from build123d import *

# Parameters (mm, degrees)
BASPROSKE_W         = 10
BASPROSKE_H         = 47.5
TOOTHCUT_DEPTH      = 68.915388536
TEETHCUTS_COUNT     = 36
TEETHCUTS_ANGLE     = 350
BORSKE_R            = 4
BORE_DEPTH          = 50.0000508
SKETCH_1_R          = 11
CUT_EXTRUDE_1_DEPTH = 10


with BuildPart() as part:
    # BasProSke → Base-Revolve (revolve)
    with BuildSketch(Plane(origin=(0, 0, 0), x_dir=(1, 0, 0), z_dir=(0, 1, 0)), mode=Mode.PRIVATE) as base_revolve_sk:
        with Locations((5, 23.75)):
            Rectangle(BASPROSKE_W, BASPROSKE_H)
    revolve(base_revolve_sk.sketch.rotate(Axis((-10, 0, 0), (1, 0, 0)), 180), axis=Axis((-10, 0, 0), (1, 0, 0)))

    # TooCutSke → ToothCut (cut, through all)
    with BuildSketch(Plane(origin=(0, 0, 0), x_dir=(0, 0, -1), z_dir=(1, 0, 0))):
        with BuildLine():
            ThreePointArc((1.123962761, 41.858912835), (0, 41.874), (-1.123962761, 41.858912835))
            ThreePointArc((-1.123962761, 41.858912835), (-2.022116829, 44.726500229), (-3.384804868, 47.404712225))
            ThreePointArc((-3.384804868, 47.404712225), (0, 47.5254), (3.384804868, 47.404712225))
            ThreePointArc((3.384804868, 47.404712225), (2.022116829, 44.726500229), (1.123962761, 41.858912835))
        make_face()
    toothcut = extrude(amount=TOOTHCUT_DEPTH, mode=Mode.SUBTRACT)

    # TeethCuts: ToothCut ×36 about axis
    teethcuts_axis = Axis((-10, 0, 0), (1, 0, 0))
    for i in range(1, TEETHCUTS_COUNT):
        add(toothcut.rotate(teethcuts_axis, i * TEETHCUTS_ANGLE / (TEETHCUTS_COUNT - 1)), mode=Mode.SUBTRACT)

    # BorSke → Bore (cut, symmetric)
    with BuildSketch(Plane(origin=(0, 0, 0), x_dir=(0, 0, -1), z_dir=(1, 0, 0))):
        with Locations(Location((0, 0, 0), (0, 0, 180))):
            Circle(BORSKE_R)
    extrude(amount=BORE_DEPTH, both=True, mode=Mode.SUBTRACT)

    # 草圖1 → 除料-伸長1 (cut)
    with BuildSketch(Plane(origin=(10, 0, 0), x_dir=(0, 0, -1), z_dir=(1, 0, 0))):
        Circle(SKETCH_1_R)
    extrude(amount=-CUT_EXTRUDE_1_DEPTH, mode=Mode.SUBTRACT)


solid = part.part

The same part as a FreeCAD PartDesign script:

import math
import FreeCAD as App
import Part
import Sketcher


def add_polygon(sketch, points):
    """Adds a closed chain of lines whose ends are joined by coincident constraints."""
    first, n = sketch.GeometryCount, len(points)
    for a, b in zip(points, points[1:] + points[:1]):
        sketch.addGeometry(Part.LineSegment(App.Vector(*a, 0), App.Vector(*b, 0)), False)
    for i in range(n):
        sketch.addConstraint(Sketcher.Constraint("Coincident", first + i, 2, first + (i + 1) % n, 1))

doc = App.newDocument("Part")
body = doc.addObject("PartDesign::Body", "Body")

# Sketch on XZ plane
sketch1 = body.newObject("Sketcher::SketchObject", "Sketch")
sketch1.AttachmentSupport = (doc.getObject("XZ_Plane"), [""])
sketch1.MapMode = "FlatFace"
add_polygon(sketch1, [(0, -47.5), (0, 0), (10, 0), (10, -47.5)])  # lines 0-3
sketch1.addConstraint(Sketcher.Constraint("Vertical", 0))
sketch1.addConstraint(Sketcher.Constraint("Horizontal", 1))
sketch1.addConstraint(Sketcher.Constraint("Vertical", 2))
sketch1.addConstraint(Sketcher.Constraint("Horizontal", 3))
sketch1.addConstraint(Sketcher.Constraint("Coincident", 0, 2, -1, 1))
sketch1.addConstraint(Sketcher.Constraint("DistanceX", 1, 1, 1, 2, 10.0))
sketch1.addConstraint(Sketcher.Constraint("DistanceY", 0, 1, 0, 2, 47.5))
revolution = body.newObject("PartDesign::Revolution", "Revolution")
revolution.Profile = sketch1
revolution.ReferenceAxis = (sketch1, ["H_Axis"])
revolution.Angle = 360

# Sketch on YZ plane
sketch2 = body.newObject("Sketcher::SketchObject", "Sketch001")
sketch2.AttachmentSupport = (doc.getObject("YZ_Plane"), [""])
sketch2.MapMode = "FlatFace"
sketch2.addGeometry(Part.ArcOfCircle(Part.Circle(App.Vector(-0.000001, 0, 0), App.Vector(0, 0, 1), 41.874001), math.radians(-1.538092), math.radians(1.538092)), False)
sketch2.addGeometry(Part.ArcOfCircle(Part.Circle(App.Vector(37.931438, -18.690264, 0), App.Vector(0, 0, 1), 18), math.radians(58.244673), math.radians(77.397077)), False)
sketch2.addGeometry(Part.ArcOfCircle(Part.Circle(App.Vector(0, 0, 0), App.Vector(0, 0, 1), 47.5254), math.radians(-4.084118), math.radians(4.084118)), False)
sketch2.addGeometry(Part.ArcOfCircle(Part.Circle(App.Vector(37.931438, 18.690264, 0), App.Vector(0, 0, 1), 18), math.radians(-77.397077), math.radians(-58.244673)), False)
sketch2.addConstraint(Sketcher.Constraint("Coincident", 0, 1, 1, 2))
sketch2.addConstraint(Sketcher.Constraint("Coincident", 1, 1, 2, 1))
sketch2.addConstraint(Sketcher.Constraint("Coincident", 2, 2, 3, 2))
sketch2.addConstraint(Sketcher.Constraint("Coincident", 3, 1, 0, 2))
sketch2.addConstraint(Sketcher.Constraint("Coincident", 0, 3, -1, 1))
sketch2.addConstraint(Sketcher.Constraint("Coincident", 2, 3, -1, 1))
sketch2.addConstraint(Sketcher.Constraint("Equal", 1, 3))
sketch2.addConstraint(Sketcher.Constraint("Symmetric", 1, 3, 3, 3, -1))
sketch2.addConstraint(Sketcher.Constraint("Radius", 1, 18.0))
sketch2.addConstraint(Sketcher.Constraint("Radius", 0, 41.874001))
sketch2.addConstraint(Sketcher.Constraint("Radius", 2, 47.5254))
sketch2.addConstraint(Sketcher.Constraint("DistanceY", 1, 3, 0, 1, 17.566301))
sketch2.addConstraint(Sketcher.Constraint("DistanceX", 0, 1, 2, 2, 5.545799))
pocket1 = body.newObject("PartDesign::Pocket", "Pocket")
pocket1.Profile = sketch2
pocket1.Type = "ThroughAll"
pocket1.Reversed = True
doc.recompute()

polarpattern = body.newObject("PartDesign::PolarPattern", "PolarPattern")
polarpattern.Originals = [pocket1]
polarpattern.Axis = (doc.getObject("X_Axis"), [""])
polarpattern.Angle = 360
polarpattern.Occurrences = 36
body.Tip = polarpattern

# Sketch on YZ plane
sketch3 = body.newObject("Sketcher::SketchObject", "Sketch002")
sketch3.AttachmentSupport = (doc.getObject("YZ_Plane"), [""])
sketch3.MapMode = "FlatFace"
sketch3.addGeometry(Part.Circle(App.Vector(0, 0, 0), App.Vector(0, 0, 1), 4), False)
sketch3.addConstraint(Sketcher.Constraint("Coincident", 0, 3, -1, 1))
sketch3.addConstraint(Sketcher.Constraint("Diameter", 0, 8.0))
pocket2 = body.newObject("PartDesign::Pocket", "Pocket001")
pocket2.Profile = sketch3
pocket2.Length = 100.000102
pocket2.Midplane = True

# Sketch on YZ plane
sketch4 = body.newObject("Sketcher::SketchObject", "Sketch003")
sketch4.AttachmentSupport = (doc.getObject("YZ_Plane"), [""])
sketch4.MapMode = "FlatFace"
sketch4.AttachmentOffset = App.Placement(App.Vector(0, 0, 10), App.Rotation())
sketch4.addGeometry(Part.Circle(App.Vector(0, 0, 0), App.Vector(0, 0, 1), 11), False)
sketch4.addConstraint(Sketcher.Constraint("Coincident", 0, 3, -1, 1))
sketch4.addConstraint(Sketcher.Constraint("Diameter", 0, 22.0))
pocket3 = body.newObject("PartDesign::Pocket", "Pocket002")
pocket3.Profile = sketch4
pocket3.Length = 10

doc.recompute()
